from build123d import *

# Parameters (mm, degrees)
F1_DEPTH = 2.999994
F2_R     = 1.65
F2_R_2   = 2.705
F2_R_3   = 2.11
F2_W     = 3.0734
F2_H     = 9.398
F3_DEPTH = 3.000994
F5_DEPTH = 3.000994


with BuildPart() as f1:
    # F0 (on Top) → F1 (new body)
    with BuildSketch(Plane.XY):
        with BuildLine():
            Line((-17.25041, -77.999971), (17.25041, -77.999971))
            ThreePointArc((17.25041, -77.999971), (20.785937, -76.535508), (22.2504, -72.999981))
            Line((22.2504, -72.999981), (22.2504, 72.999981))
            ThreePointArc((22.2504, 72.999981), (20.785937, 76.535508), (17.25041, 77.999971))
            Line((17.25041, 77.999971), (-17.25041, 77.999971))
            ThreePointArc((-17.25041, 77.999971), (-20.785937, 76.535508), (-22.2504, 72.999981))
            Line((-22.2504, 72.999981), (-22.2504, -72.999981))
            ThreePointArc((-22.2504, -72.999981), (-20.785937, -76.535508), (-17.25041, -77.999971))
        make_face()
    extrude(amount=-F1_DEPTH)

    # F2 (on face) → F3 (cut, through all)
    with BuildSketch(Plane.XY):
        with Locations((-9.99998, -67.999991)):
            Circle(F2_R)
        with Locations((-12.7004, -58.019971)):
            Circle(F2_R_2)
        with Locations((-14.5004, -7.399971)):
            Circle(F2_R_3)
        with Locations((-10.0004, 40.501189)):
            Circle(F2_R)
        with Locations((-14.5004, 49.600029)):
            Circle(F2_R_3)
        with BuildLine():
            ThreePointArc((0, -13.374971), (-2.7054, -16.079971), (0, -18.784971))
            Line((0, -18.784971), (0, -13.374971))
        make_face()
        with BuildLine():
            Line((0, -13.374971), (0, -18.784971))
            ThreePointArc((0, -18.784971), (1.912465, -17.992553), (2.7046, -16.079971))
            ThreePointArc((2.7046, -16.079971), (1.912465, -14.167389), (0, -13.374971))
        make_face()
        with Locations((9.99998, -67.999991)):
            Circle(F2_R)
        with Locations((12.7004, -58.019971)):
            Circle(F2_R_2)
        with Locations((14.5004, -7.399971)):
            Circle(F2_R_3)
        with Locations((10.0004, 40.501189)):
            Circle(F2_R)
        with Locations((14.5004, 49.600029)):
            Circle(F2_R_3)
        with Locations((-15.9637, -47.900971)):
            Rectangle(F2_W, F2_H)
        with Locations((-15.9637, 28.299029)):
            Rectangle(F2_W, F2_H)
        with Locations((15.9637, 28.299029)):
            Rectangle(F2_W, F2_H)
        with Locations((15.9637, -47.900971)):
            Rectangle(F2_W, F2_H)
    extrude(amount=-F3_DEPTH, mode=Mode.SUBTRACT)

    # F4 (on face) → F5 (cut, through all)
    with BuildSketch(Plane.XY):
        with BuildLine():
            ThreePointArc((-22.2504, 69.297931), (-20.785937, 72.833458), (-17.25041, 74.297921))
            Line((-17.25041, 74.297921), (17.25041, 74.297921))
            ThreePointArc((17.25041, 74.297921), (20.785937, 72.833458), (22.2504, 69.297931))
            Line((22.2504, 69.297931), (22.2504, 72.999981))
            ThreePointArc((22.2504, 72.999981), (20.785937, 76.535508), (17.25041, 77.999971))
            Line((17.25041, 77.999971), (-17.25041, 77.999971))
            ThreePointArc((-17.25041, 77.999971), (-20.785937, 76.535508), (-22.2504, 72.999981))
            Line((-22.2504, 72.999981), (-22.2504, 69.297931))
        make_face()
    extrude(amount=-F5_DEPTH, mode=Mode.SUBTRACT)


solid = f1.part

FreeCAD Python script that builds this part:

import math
import FreeCAD as App
import Part
import Sketcher
from FreeCAD import Vector
Q = App.Units.Quantity

doc = App.newDocument("Part")
body = doc.addObject("PartDesign::Body", "Body")

sketch1 = body.newObject("Sketcher::SketchObject", "Sketch")
sketch1.AttachmentSupport = (doc.getObject("XY_Plane"), [""])
sketch1.MapMode = "FlatFace"
sketch1.addGeometry([
    Part.LineSegment(Vector(-17.3, -78, 0), Vector(17.3, -78, 0)),
    Part.ArcOfCircle(Part.Circle(Vector(17.3, -73, 0), Vector(0, 0, 1), 5), math.radians(-90), math.radians(0)),
    Part.LineSegment(Vector(22.3, -73, 0), Vector(22.3, 73, 0)),
    Part.ArcOfCircle(Part.Circle(Vector(17.3, 73, 0), Vector(0, 0, 1), 5), math.radians(0), math.radians(90)),
    Part.LineSegment(Vector(17.3, 78, 0), Vector(-17.3, 78, 0)),
    Part.ArcOfCircle(Part.Circle(Vector(-17.3, 73, 0), Vector(0, 0, 1), 5), math.radians(90), math.radians(180)),
    Part.LineSegment(Vector(-22.3, 73, 0), Vector(-22.3, -73, 0)),
    Part.ArcOfCircle(Part.Circle(Vector(-17.3, -73, 0), Vector(0, 0, 1), 5), math.radians(180), math.radians(270)),
], False)
sketch1.addConstraint([
    Sketcher.Constraint("Tangent", 0, 2, 1, 1),
    Sketcher.Constraint("Tangent", 1, 2, 2, 1),
    Sketcher.Constraint("Tangent", 2, 2, 3, 1),
    Sketcher.Constraint("Tangent", 3, 2, 4, 1),
    Sketcher.Constraint("Tangent", 4, 2, 5, 1),
    Sketcher.Constraint("Tangent", 5, 2, 6, 1),
    Sketcher.Constraint("Tangent", 6, 2, 7, 1),
    Sketcher.Constraint("Tangent", 7, 2, 0, 1),
    Sketcher.Constraint("Horizontal", 0),
    Sketcher.Constraint("Vertical", 2),
    Sketcher.Constraint("Horizontal", 4),
    Sketcher.Constraint("Vertical", 6),
    Sketcher.Constraint("Equal", 1, 3),
    Sketcher.Constraint("Equal", 3, 5),
    Sketcher.Constraint("Equal", 5, 7),
    Sketcher.Constraint("Symmetric", 1, 3, 5, 3, -1, 1),
    Sketcher.Constraint("DistanceX", 0, 1, 0, 2, Q("1.3583 in")),
    Sketcher.Constraint("DistanceX", -1, 1, 1, 2, Q("0.876 in")),
    Sketcher.Constraint("DistanceY", 2, 1, 2, 2, Q("145.999962 mm")),
])
pad1 = body.newObject("PartDesign::Pad", "Pad")
pad1.Profile = sketch1
pad1.Length = 2.999994
pad1.Reversed = True

sketch2 = body.newObject("Sketcher::SketchObject", "Sketch001")
sketch2.AttachmentSupport = (doc.getObject("XY_Plane"), [""])
sketch2.MapMode = "FlatFace"
sketch2.addGeometry([
    Part.Circle(Vector(-10, -68, 0), Vector(0, 0, 1), 1.6),
    Part.Circle(Vector(-12.7, -58, 0), Vector(0, 0, 1), 2.7),
    Part.Circle(Vector(-14.5, -7.4, 0), Vector(0, 0, 1), 2.1),
    Part.Circle(Vector(-10, 40.5, 0), Vector(0, 0, 1), 1.6),
    Part.Circle(Vector(-14.5, 49.6, 0), Vector(0, 0, 1), 2.1),
    Part.ArcOfCircle(Part.Circle(Vector(0, -16.1, 0), Vector(0, 0, 1), 2.7), math.radians(90), math.radians(270)),
    Part.ArcOfCircle(Part.Circle(Vector(0, -16.1, 0), Vector(0, 0, 1), 2.7), math.radians(-90), math.radians(0)),
    Part.ArcOfCircle(Part.Circle(Vector(0, -16.1, 0), Vector(0, 0, 1), 2.7), math.radians(0), math.radians(90)),
    Part.Circle(Vector(10, -68, 0), Vector(0, 0, 1), 1.6),
    Part.Circle(Vector(12.7, -58, 0), Vector(0, 0, 1), 2.7),
    Part.Circle(Vector(14.5, -7.4, 0), Vector(0, 0, 1), 2.1),
    Part.Circle(Vector(10, 40.5, 0), Vector(0, 0, 1), 1.6),
    Part.Circle(Vector(14.5, 49.6, 0), Vector(0, 0, 1), 2.1),
    Part.LineSegment(Vector(-17.5, -43.2, 0), Vector(-17.5, -52.6, 0)),
    Part.LineSegment(Vector(-17.5, -52.6, 0), Vector(-14.4, -52.6, 0)),
    Part.LineSegment(Vector(-14.4, -52.6, 0), Vector(-14.4, -43.2, 0)),
    Part.LineSegment(Vector(-14.4, -43.2, 0), Vector(-17.5, -43.2, 0)),
    Part.LineSegment(Vector(-17.5, 33, 0), Vector(-17.5, 23.6, 0)),
    Part.LineSegment(Vector(-17.5, 23.6, 0), Vector(-14.4, 23.6, 0)),
    Part.LineSegment(Vector(-14.4, 23.6, 0), Vector(-14.4, 33, 0)),
    Part.LineSegment(Vector(-14.4, 33, 0), Vector(-17.5, 33, 0)),
    Part.LineSegment(Vector(14.4, 33, 0), Vector(14.4, 23.6, 0)),
    Part.LineSegment(Vector(14.4, 23.6, 0), Vector(17.5, 23.6, 0)),
    Part.LineSegment(Vector(17.5, 23.6, 0), Vector(17.5, 33, 0)),
    Part.LineSegment(Vector(17.5, 33, 0), Vector(14.4, 33, 0)),
    Part.LineSegment(Vector(14.4, -43.2, 0), Vector(14.4, -52.6, 0)),
    Part.LineSegment(Vector(14.4, -52.6, 0), Vector(17.5, -52.6, 0)),
    Part.LineSegment(Vector(17.5, -52.6, 0), Vector(17.5, -43.2, 0)),
    Part.LineSegment(Vector(17.5, -43.2, 0), Vector(14.4, -43.2, 0)),
], False)
sketch2.addConstraint([
    Sketcher.Constraint("Tangent", 5, 2, 6, 1),
    Sketcher.Constraint("Tangent", 6, 2, 7, 1),
    Sketcher.Constraint("Tangent", 7, 2, 5, 1),
    Sketcher.Constraint("Coincident", 13, 2, 14, 1),
    Sketcher.Constraint("Coincident", 14, 2, 15, 1),
    Sketcher.Constraint("Coincident", 15, 2, 16, 1),
    Sketcher.Constraint("Coincident", 16, 2, 13, 1),
    Sketcher.Constraint("Coincident", 17, 2, 18, 1),
    Sketcher.Constraint("Coincident", 18, 2, 19, 1),
    Sketcher.Constraint("Coincident", 19, 2, 20, 1),
    Sketcher.Constraint("Coincident", 20, 2, 17, 1),
    Sketcher.Constraint("Coincident", 21, 2, 22, 1),
    Sketcher.Constraint("Coincident", 22, 2, 23, 1),
    Sketcher.Constraint("Coincident", 23, 2, 24, 1),
    Sketcher.Constraint("Coincident", 24, 2, 21, 1),
    Sketcher.Constraint("Coincident", 25, 2, 26, 1),
    Sketcher.Constraint("Coincident", 26, 2, 27, 1),
    Sketcher.Constraint("Coincident", 27, 2, 28, 1),
    Sketcher.Constraint("Coincident", 28, 2, 25, 1),
    Sketcher.Constraint("Vertical", 13),
    Sketcher.Constraint("Horizontal", 14),
    Sketcher.Constraint("Vertical", 15),
    Sketcher.Constraint("Horizontal", 16),
    Sketcher.Constraint("Vertical", 17),
    Sketcher.Constraint("Horizontal", 18),
    Sketcher.Constraint("Vertical", 19),
    Sketcher.Constraint("Horizontal", 20),
    Sketcher.Constraint("Vertical", 21),
    Sketcher.Constraint("Horizontal", 22),
    Sketcher.Constraint("Vertical", 23),
    Sketcher.Constraint("Horizontal", 24),
    Sketcher.Constraint("Vertical", 25),
    Sketcher.Constraint("Horizontal", 26),
    Sketcher.Constraint("Vertical", 27),
    Sketcher.Constraint("Horizontal", 28),
    Sketcher.Constraint("Equal", 0, 3),
    Sketcher.Constraint("Equal", 2, 4),
    Sketcher.Constraint("Equal", 1, 5),
    Sketcher.Constraint("Equal", 3, 8),
    Sketcher.Constraint("Equal", 7, 9),
    Sketcher.Constraint("Equal", 4, 10),
    Sketcher.Constraint("Equal", 8, 11),
    Sketcher.Constraint("Equal", 10, 12),
    Sketcher.Constraint("Symmetric", 0, 3, 8, 3, -2),
    Sketcher.Constraint("Symmetric", 1, 3, 9, 3, -2),
    Sketcher.Constraint("Symmetric", 2, 3, 10, 3, -2),
    Sketcher.Constraint("Symmetric", 3, 3, 11, 3, -2),
    Sketcher.Constraint("Symmetric", 4, 3, 12, 3, -2),
    Sketcher.Constraint("Symmetric", 18, 2, 21, 2, -2),
    Sketcher.Constraint("Symmetric", 20, 2, 23, 2, -2),
    Sketcher.Constraint("Symmetric", 14, 2, 25, 2, -2),
    Sketcher.Constraint("Symmetric", 16, 2, 27, 2, -2),
    Sketcher.Constraint("PointOnObject", 5, 2, -2),
    Sketcher.Constraint("PointOnObject", 7, 2, -2),
    Sketcher.Constraint("Horizontal", 7, 3, 6, 2),
    Sketcher.Constraint("Vertical", 2, 3, 4, 3),
    Sketcher.Constraint("Vertical", 16, 2, 17, 2),
    Sketcher.Constraint("Vertical", 15, 2, 18, 2),
    Sketcher.Constraint("Equal", 15, 17),
    Sketcher.Constraint("DistanceY", 13, 2, 13, 1, Q("0.37 in")),
    Sketcher.Constraint("DistanceX", 1, 3, 5, 3, Q("0.5 in")),
    Sketcher.Constraint("Diameter", 0, Q("3.3 mm")),
    Sketcher.Constraint("Diameter", 1, Q("5.41 mm")),
    Sketcher.Constraint("Diameter", 2, Q("4.22 mm")),
    Sketcher.Constraint("DistanceX", 14, 1, 14, 2, Q("0.121 in")),
    Sketcher.Constraint("DistanceX", 0, 3, -1, 1, Q("0.3937 in")),
    Sketcher.Constraint("DistanceY", 0, 3, 3, 3, Q("4.2717 in")),
    Sketcher.Constraint("DistanceY", 0, 3, 13, 2, Q("0.6063 in")),
    Sketcher.Constraint("DistanceY", 17, 2, 3, 3, Q("0.6654 in")),
    Sketcher.Constraint("DistanceX", 1, 3, -1, 1, Q("12.7004 mm")),
    Sketcher.Constraint("DistanceX", 2, 3, -1, 1, Q("14.5004 mm")),
    Sketcher.Constraint("DistanceX", 3, 3, -1, 1, Q("10.0004 mm")),
    Sketcher.Constraint("DistanceX", 13, 2, -1, 1, Q("17.5004 mm")),
    Sketcher.Constraint("DistanceY", 1, 3, 2, 3, Q("50.62 mm")),
    Sketcher.Constraint("DistanceY", 2, 3, 4, 3, Q("57 mm")),
    Sketcher.Constraint("DistanceY", 5, 3, 2, 3, Q("8.68 mm")),
    Sketcher.Constraint("DistanceY", 1, 3, 13, 2, Q("5.42 mm")),
    Sketcher.Constraint("DistanceY", 0, 3, -1, 1, Q("67.999991 mm")),
])
pocket1 = body.newObject("PartDesign::Pocket", "Pocket")
pocket1.Profile = sketch2
pocket1.Type = "ThroughAll"

sketch3 = body.newObject("Sketcher::SketchObject", "Sketch002")
sketch3.AttachmentSupport = (doc.getObject("XY_Plane"), [""])
sketch3.MapMode = "FlatFace"
sketch3.addGeometry([
    Part.ArcOfCircle(Part.Circle(Vector(-17.3, 69.3, 0), Vector(0, 0, 1), 5), math.radians(90), math.radians(180)),
    Part.LineSegment(Vector(-17.3, 74.3, 0), Vector(17.3, 74.3, 0)),
    Part.ArcOfCircle(Part.Circle(Vector(17.3, 69.3, 0), Vector(0, 0, 1), 5), math.radians(0), math.radians(90)),
    Part.LineSegment(Vector(22.3, 69.3, 0), Vector(22.3, 73, 0)),
    Part.ArcOfCircle(Part.Circle(Vector(17.3, 73, 0), Vector(0, 0, 1), 5), math.radians(0), math.radians(90)),
    Part.LineSegment(Vector(17.3, 78, 0), Vector(-17.3, 78, 0)),
    Part.ArcOfCircle(Part.Circle(Vector(-17.3, 73, 0), Vector(0, 0, 1), 5), math.radians(90), math.radians(180)),
    Part.LineSegment(Vector(-22.3, 73, 0), Vector(-22.3, 69.3, 0)),
], False)
sketch3.addConstraint([
    Sketcher.Constraint("Tangent", 0, 1, 1, 1),
    Sketcher.Constraint("Tangent", 1, 2, 2, 2),
    Sketcher.Constraint("Tangent", 2, 1, 3, 1),
    Sketcher.Constraint("Tangent", 3, 2, 4, 1),
    Sketcher.Constraint("Tangent", 4, 2, 5, 1),
    Sketcher.Constraint("Tangent", 5, 2, 6, 1),
    Sketcher.Constraint("Tangent", 6, 2, 7, 1),
    Sketcher.Constraint("Tangent", 7, 2, 0, 2),
    Sketcher.Constraint("Horizontal", 1),
    Sketcher.Constraint("Vertical", 3),
    Sketcher.Constraint("Horizontal", 5),
    Sketcher.Constraint("Vertical", 7),
    Sketcher.Constraint("Equal", 0, 2),
    Sketcher.Constraint("Equal", 2, 4),
    Sketcher.Constraint("Equal", 4, 6),
    Sketcher.Constraint("DistanceX", 1, 1, 1, 2, Q("1.3583 in")),
    Sketcher.Constraint("DistanceX", -1, 1, 2, 1, Q("0.876 in")),
    Sketcher.Constraint("DistanceX", 6, 2, -1, 1, Q("0.876 in")),
    Sketcher.Constraint("DistanceY", 6, 3, 0, 1, Q("0.0511 in")),
    Sketcher.Constraint("DistanceY", -1, 1, 0, 3, Q("69.297932 mm")),
])
pocket2 = body.newObject("PartDesign::Pocket", "Pocket001")
pocket2.Profile = sketch3
pocket2.Type = "ThroughAll"

doc.recompute()
